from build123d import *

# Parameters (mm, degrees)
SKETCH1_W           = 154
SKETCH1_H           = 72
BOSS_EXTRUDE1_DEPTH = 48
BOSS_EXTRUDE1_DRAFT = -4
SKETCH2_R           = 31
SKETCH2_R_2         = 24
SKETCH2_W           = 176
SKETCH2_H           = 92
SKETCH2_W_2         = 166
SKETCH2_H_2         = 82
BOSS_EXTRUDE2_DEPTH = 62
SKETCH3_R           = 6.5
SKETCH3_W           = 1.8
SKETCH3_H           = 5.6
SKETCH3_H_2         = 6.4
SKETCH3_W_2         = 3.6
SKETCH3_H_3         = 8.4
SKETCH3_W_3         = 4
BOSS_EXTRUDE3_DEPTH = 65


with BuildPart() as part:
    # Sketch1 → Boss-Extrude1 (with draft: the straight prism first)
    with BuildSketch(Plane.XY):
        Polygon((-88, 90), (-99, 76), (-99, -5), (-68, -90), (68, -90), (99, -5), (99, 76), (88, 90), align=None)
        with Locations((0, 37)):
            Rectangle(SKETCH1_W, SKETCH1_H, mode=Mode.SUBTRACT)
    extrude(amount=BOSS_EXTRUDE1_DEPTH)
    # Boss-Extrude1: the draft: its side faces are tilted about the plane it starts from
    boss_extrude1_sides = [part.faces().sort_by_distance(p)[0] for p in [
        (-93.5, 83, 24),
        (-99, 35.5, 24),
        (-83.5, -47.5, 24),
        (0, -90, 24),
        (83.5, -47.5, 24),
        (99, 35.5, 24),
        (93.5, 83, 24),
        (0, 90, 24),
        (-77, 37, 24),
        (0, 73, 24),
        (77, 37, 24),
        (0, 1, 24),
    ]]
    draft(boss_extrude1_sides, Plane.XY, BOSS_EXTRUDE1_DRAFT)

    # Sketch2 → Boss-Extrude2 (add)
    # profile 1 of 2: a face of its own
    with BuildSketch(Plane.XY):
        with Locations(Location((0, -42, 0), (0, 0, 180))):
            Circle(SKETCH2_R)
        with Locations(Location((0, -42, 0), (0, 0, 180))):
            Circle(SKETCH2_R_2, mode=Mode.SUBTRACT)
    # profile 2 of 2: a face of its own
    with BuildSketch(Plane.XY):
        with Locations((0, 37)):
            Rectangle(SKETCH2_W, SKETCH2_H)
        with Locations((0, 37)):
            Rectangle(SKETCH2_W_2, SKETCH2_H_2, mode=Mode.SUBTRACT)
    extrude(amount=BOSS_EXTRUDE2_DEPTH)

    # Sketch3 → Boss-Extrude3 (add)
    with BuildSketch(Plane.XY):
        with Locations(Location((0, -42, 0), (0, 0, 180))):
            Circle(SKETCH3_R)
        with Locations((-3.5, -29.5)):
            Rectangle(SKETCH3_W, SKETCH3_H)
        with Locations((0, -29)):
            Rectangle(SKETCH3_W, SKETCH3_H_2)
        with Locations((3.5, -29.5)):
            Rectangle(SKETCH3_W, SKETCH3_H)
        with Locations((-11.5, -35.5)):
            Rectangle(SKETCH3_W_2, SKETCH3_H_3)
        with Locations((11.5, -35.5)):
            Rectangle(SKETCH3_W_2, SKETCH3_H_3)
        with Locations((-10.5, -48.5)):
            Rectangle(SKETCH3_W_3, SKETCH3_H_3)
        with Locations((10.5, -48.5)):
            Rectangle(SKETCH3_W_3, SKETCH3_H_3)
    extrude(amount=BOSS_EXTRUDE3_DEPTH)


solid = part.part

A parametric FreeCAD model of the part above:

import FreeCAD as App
import Part
import Sketcher
from FreeCAD import Vector


def faces_at(feature, points):
    """Names of the faces that lie closest to the given points."""
    faces = feature.Shape.Faces
    near = lambda p: min(range(len(faces)), key=lambda i: faces[i].distToShape(Part.Vertex(*p))[0])
    return sorted({f"Face{near(p) + 1}" for p in points})

doc = App.newDocument("Part")
body = doc.addObject("PartDesign::Body", "Body")

sketch1 = body.newObject("Sketcher::SketchObject", "Sketch")
sketch1.AttachmentSupport = (doc.getObject("XY_Plane"), [""])
sketch1.MapMode = "FlatFace"
sketch1.addGeometry(Part.LineSegment(Vector(-88, 90, 0), Vector(-99, 76, 0)), False)
sketch1.addGeometry(Part.LineSegment(Vector(-99, 76, 0), Vector(-99, -5, 0)), False)
sketch1.addGeometry(Part.LineSegment(Vector(-99, -5, 0), Vector(-68, -90, 0)), False)
sketch1.addGeometry(Part.LineSegment(Vector(-68, -90, 0), Vector(68, -90, 0)), False)
sketch1.addGeometry(Part.LineSegment(Vector(68, -90, 0), Vector(99, -5, 0)), False)
sketch1.addGeometry(Part.LineSegment(Vector(99, -5, 0), Vector(99, 76, 0)), False)
sketch1.addGeometry(Part.LineSegment(Vector(99, 76, 0), Vector(88, 90, 0)), False)
sketch1.addGeometry(Part.LineSegment(Vector(88, 90, 0), Vector(-88, 90, 0)), False)
sketch1.addGeometry(Part.LineSegment(Vector(77, 1, 0), Vector(-77, 1, 0)), False)
sketch1.addGeometry(Part.LineSegment(Vector(-77, 1, 0), Vector(-77, 73, 0)), False)
sketch1.addGeometry(Part.LineSegment(Vector(-77, 73, 0), Vector(77, 73, 0)), False)
sketch1.addGeometry(Part.LineSegment(Vector(77, 73, 0), Vector(77, 1, 0)), False)
sketch1.addConstraint(Sketcher.Constraint("Coincident", 0, 2, 1, 1))
sketch1.addConstraint(Sketcher.Constraint("Coincident", 1, 2, 2, 1))
sketch1.addConstraint(Sketcher.Constraint("Coincident", 2, 2, 3, 1))
sketch1.addConstraint(Sketcher.Constraint("Coincident", 3, 2, 4, 1))
sketch1.addConstraint(Sketcher.Constraint("Coincident", 4, 2, 5, 1))
sketch1.addConstraint(Sketcher.Constraint("Coincident", 5, 2, 6, 1))
sketch1.addConstraint(Sketcher.Constraint("Coincident", 6, 2, 7, 1))
sketch1.addConstraint(Sketcher.Constraint("Coincident", 7, 2, 0, 1))
sketch1.addConstraint(Sketcher.Constraint("Coincident", 8, 2, 9, 1))
sketch1.addConstraint(Sketcher.Constraint("Coincident", 9, 2, 10, 1))
sketch1.addConstraint(Sketcher.Constraint("Coincident", 10, 2, 11, 1))
sketch1.addConstraint(Sketcher.Constraint("Coincident", 11, 2, 8, 1))
sketch1.addConstraint(Sketcher.Constraint("Vertical", 1))
sketch1.addConstraint(Sketcher.Constraint("Horizontal", 3))
sketch1.addConstraint(Sketcher.Constraint("Vertical", 5))
sketch1.addConstraint(Sketcher.Constraint("Horizontal", 7))
sketch1.addConstraint(Sketcher.Constraint("Horizontal", 8))
sketch1.addConstraint(Sketcher.Constraint("Vertical", 9))
sketch1.addConstraint(Sketcher.Constraint("Horizontal", 10))
sketch1.addConstraint(Sketcher.Constraint("Vertical", 11))
sketch1.addConstraint(Sketcher.Constraint("Symmetric", 1, 2, 4, 2, -2))
sketch1.addConstraint(Sketcher.Constraint("Horizontal", 0, 2, 5, 2))
sketch1.addConstraint(Sketcher.Constraint("Equal", 2, 4))
sketch1.addConstraint(Sketcher.Constraint("Equal", 0, 6))
sketch1.addConstraint(Sketcher.Constraint("DistanceX", 3, 1, 3, 2, 136.0))
sketch1.addConstraint(Sketcher.Constraint("DistanceX", 7, 2, 7, 1, 176.0))
sketch1.addConstraint(Sketcher.Constraint("DistanceX", 8, 2, 8, 1, 154.0))
sketch1.addConstraint(Sketcher.Constraint("DistanceY", 1, 2, 1, 1, 81.0))
sketch1.addConstraint(Sketcher.Constraint("DistanceY", 9, 1, 9, 2, 72.0))
sketch1.addConstraint(Sketcher.Constraint("DistanceX", 0, 2, -1, 1, 99.0))
sketch1.addConstraint(Sketcher.Constraint("DistanceY", -1, 1, 0, 2, 76.0))
sketch1.addConstraint(Sketcher.Constraint("DistanceY", 2, 2, -1, 1, 90.0))
sketch1.addConstraint(Sketcher.Constraint("DistanceY", -1, 1, 6, 2, 90.0))
sketch1.addConstraint(Sketcher.Constraint("DistanceX", 8, 2, -1, 1, 77.0))
sketch1.addConstraint(Sketcher.Constraint("DistanceY", -1, 1, 8, 2, 1.0))
pad1 = body.newObject("PartDesign::Pad", "Pad")
pad1.Profile = sketch1
pad1.Length = 48
doc.recompute()

draft = body.newObject("PartDesign::Draft", "Draft")
draft.Base = (pad1, faces_at(pad1, [
    (-93.5, 83, 24),
    (-99, 35.5, 24),
    (-83.5, -47.5, 24),
    (0, -90, 24),
    (83.5, -47.5, 24),
    (99, 35.5, 24),
    (93.5, 83, 24),
    (0, 90, 24),
    (-77, 37, 24),
    (0, 73, 24),
    (77, 37, 24),
    (0, 1, 24),
]))
draft.NeutralPlane = (doc.getObject("XY_Plane"), [""])
draft.Angle = 4
draft.Reversed = True

sketch2 = body.newObject("Sketcher::SketchObject", "Sketch001")
sketch2.AttachmentSupport = (doc.getObject("XY_Plane"), [""])
sketch2.MapMode = "FlatFace"
sketch2.addGeometry(Part.Circle(Vector(0, -42, 0), Vector(0, 0, 1), 31), False)
sketch2.addGeometry(Part.Circle(Vector(0, -42, 0), Vector(0, 0, 1), 24), False)
sketch2.addGeometry(Part.LineSegment(Vector(-88, 83, 0), Vector(-88, -9, 0)), False)
sketch2.addGeometry(Part.LineSegment(Vector(-88, -9, 0), Vector(88, -9, 0)), False)
sketch2.addGeometry(Part.LineSegment(Vector(88, -9, 0), Vector(88, 83, 0)), False)
sketch2.addGeometry(Part.LineSegment(Vector(88, 83, 0), Vector(-88, 83, 0)), False)
sketch2.addGeometry(Part.LineSegment(Vector(83, -4, 0), Vector(-83, -4, 0)), False)
sketch2.addGeometry(Part.LineSegment(Vector(-83, -4, 0), Vector(-83, 78, 0)), False)
sketch2.addGeometry(Part.LineSegment(Vector(-83, 78, 0), Vector(83, 78, 0)), False)
sketch2.addGeometry(Part.LineSegment(Vector(83, 78, 0), Vector(83, -4, 0)), False)
sketch2.addConstraint(Sketcher.Constraint("Coincident", 2, 2, 3, 1))
sketch2.addConstraint(Sketcher.Constraint("Coincident", 3, 2, 4, 1))
sketch2.addConstraint(Sketcher.Constraint("Coincident", 4, 2, 5, 1))
sketch2.addConstraint(Sketcher.Constraint("Coincident", 5, 2, 2, 1))
sketch2.addConstraint(Sketcher.Constraint("Coincident", 6, 2, 7, 1))
sketch2.addConstraint(Sketcher.Constraint("Coincident", 7, 2, 8, 1))
sketch2.addConstraint(Sketcher.Constraint("Coincident", 8, 2, 9, 1))
sketch2.addConstraint(Sketcher.Constraint("Coincident", 9, 2, 6, 1))
sketch2.addConstraint(Sketcher.Constraint("Vertical", 2))
sketch2.addConstraint(Sketcher.Constraint("Horizontal", 3))
sketch2.addConstraint(Sketcher.Constraint("Vertical", 4))
sketch2.addConstraint(Sketcher.Constraint("Horizontal", 5))
sketch2.addConstraint(Sketcher.Constraint("Horizontal", 6))
sketch2.addConstraint(Sketcher.Constraint("Vertical", 7))
sketch2.addConstraint(Sketcher.Constraint("Horizontal", 8))
sketch2.addConstraint(Sketcher.Constraint("Vertical", 9))
sketch2.addConstraint(Sketcher.Constraint("Coincident", 1, 3, 0, 3))
sketch2.addConstraint(Sketcher.Constraint("PointOnObject", 0, 3, -2))
sketch2.addConstraint(Sketcher.Constraint("Diameter", 0, 62.0))
sketch2.addConstraint(Sketcher.Constraint("Diameter", 1, 48.0))
sketch2.addConstraint(Sketcher.Constraint("DistanceX", 3, 1, 3, 2, 176.0))
sketch2.addConstraint(Sketcher.Constraint("DistanceX", 6, 2, 6, 1, 166.0))
sketch2.addConstraint(Sketcher.Constraint("DistanceY", 2, 2, 2, 1, 92.0))
sketch2.addConstraint(Sketcher.Constraint("DistanceY", 7, 1, 7, 2, 82.0))
sketch2.addConstraint(Sketcher.Constraint("DistanceY", 0, 3, -1, 1, 42.0))
sketch2.addConstraint(Sketcher.Constraint("DistanceX", 2, 2, -1, 1, 88.0))
sketch2.addConstraint(Sketcher.Constraint("DistanceY", 2, 2, -1, 1, 9.0))
sketch2.addConstraint(Sketcher.Constraint("DistanceX", 6, 2, -1, 1, 83.0))
sketch2.addConstraint(Sketcher.Constraint("DistanceY", 6, 2, -1, 1, 4.0))
pad2 = body.newObject("PartDesign::Pad", "Pad001")
pad2.Profile = sketch2
pad2.Length = 62

sketch3 = body.newObject("Sketcher::SketchObject", "Sketch002")
sketch3.AttachmentSupport = (doc.getObject("XY_Plane"), [""])
sketch3.MapMode = "FlatFace"
sketch3.addGeometry(Part.Circle(Vector(0, -42, 0), Vector(0, 0, 1), 6.5), False)
sketch3.addGeometry(Part.LineSegment(Vector(-4.4, -26.7, 0), Vector(-4.4, -32.3, 0)), False)
sketch3.addGeometry(Part.LineSegment(Vector(-4.4, -32.3, 0), Vector(-2.6, -32.3, 0)), False)
sketch3.addGeometry(Part.LineSegment(Vector(-2.6, -32.3, 0), Vector(-2.6, -26.7, 0)), False)
sketch3.addGeometry(Part.LineSegment(Vector(-2.6, -26.7, 0), Vector(-4.4, -26.7, 0)), False)
sketch3.addGeometry(Part.LineSegment(Vector(-0.9, -25.8, 0), Vector(-0.9, -32.2, 0)), False)
sketch3.addGeometry(Part.LineSegment(Vector(-0.9, -32.2, 0), Vector(0.9, -32.2, 0)), False)
sketch3.addGeometry(Part.LineSegment(Vector(0.9, -32.2, 0), Vector(0.9, -25.8, 0)), False)
sketch3.addGeometry(Part.LineSegment(Vector(0.9, -25.8, 0), Vector(-0.9, -25.8, 0)), False)
sketch3.addGeometry(Part.LineSegment(Vector(2.6, -26.7, 0), Vector(2.6, -32.3, 0)), False)
sketch3.addGeometry(Part.LineSegment(Vector(2.6, -32.3, 0), Vector(4.4, -32.3, 0)), False)
sketch3.addGeometry(Part.LineSegment(Vector(4.4, -32.3, 0), Vector(4.4, -26.7, 0)), False)
sketch3.addGeometry(Part.LineSegment(Vector(4.4, -26.7, 0), Vector(2.6, -26.7, 0)), False)
sketch3.addGeometry(Part.LineSegment(Vector(-13.3, -31.3, 0), Vector(-13.3, -39.7, 0)), False)
sketch3.addGeometry(Part.LineSegment(Vector(-13.3, -39.7, 0), Vector(-9.7, -39.7, 0)), False)
sketch3.addGeometry(Part.LineSegment(Vector(-9.7, -39.7, 0), Vector(-9.7, -31.3, 0)), False)
sketch3.addGeometry(Part.LineSegment(Vector(-9.7, -31.3, 0), Vector(-13.3, -31.3, 0)), False)
sketch3.addGeometry(Part.LineSegment(Vector(9.7, -31.3, 0), Vector(9.7, -39.7, 0)), False)
sketch3.addGeometry(Part.LineSegment(Vector(9.7, -39.7, 0), Vector(13.3, -39.7, 0)), False)
sketch3.addGeometry(Part.LineSegment(Vector(13.3, -39.7, 0), Vector(13.3, -31.3, 0)), False)
sketch3.addGeometry(Part.LineSegment(Vector(13.3, -31.3, 0), Vector(9.7, -31.3, 0)), False)
sketch3.addGeometry(Part.LineSegment(Vector(-12.5, -44.3, 0), Vector(-12.5, -52.7, 0)), False)
sketch3.addGeometry(Part.LineSegment(Vector(-12.5, -52.7, 0), Vector(-8.5, -52.7, 0)), False)
sketch3.addGeometry(Part.LineSegment(Vector(-8.5, -52.7, 0), Vector(-8.5, -44.3, 0)), False)
sketch3.addGeometry(Part.LineSegment(Vector(-8.5, -44.3, 0), Vector(-12.5, -44.3, 0)), False)
sketch3.addGeometry(Part.LineSegment(Vector(8.5, -44.3, 0), Vector(8.5, -52.7, 0)), False)
sketch3.addGeometry(Part.LineSegment(Vector(8.5, -52.7, 0), Vector(12.5, -52.7, 0)), False)
sketch3.addGeometry(Part.LineSegment(Vector(12.5, -52.7, 0), Vector(12.5, -44.3, 0)), False)
sketch3.addGeometry(Part.LineSegment(Vector(12.5, -44.3, 0), Vector(8.5, -44.3, 0)), False)
sketch3.addConstraint(Sketcher.Constraint("Coincident", 1, 2, 2, 1))
sketch3.addConstraint(Sketcher.Constraint("Coincident", 2, 2, 3, 1))
sketch3.addConstraint(Sketcher.Constraint("Coincident", 3, 2, 4, 1))
sketch3.addConstraint(Sketcher.Constraint("Coincident", 4, 2, 1, 1))
sketch3.addConstraint(Sketcher.Constraint("Coincident", 5, 2, 6, 1))
sketch3.addConstraint(Sketcher.Constraint("Coincident", 6, 2, 7, 1))
sketch3.addConstraint(Sketcher.Constraint("Coincident", 7, 2, 8, 1))
sketch3.addConstraint(Sketcher.Constraint("Coincident", 8, 2, 5, 1))
sketch3.addConstraint(Sketcher.Constraint("Coincident", 9, 2, 10, 1))
sketch3.addConstraint(Sketcher.Constraint("Coincident", 10, 2, 11, 1))
sketch3.addConstraint(Sketcher.Constraint("Coincident", 11, 2, 12, 1))
sketch3.addConstraint(Sketcher.Constraint("Coincident", 12, 2, 9, 1))
sketch3.addConstraint(Sketcher.Constraint("Coincident", 13, 2, 14, 1))
sketch3.addConstraint(Sketcher.Constraint("Coincident", 14, 2, 15, 1))
sketch3.addConstraint(Sketcher.Constraint("Coincident", 15, 2, 16, 1))
sketch3.addConstraint(Sketcher.Constraint("Coincident", 16, 2, 13, 1))
sketch3.addConstraint(Sketcher.Constraint("Coincident", 17, 2, 18, 1))
sketch3.addConstraint(Sketcher.Constraint("Coincident", 18, 2, 19, 1))
sketch3.addConstraint(Sketcher.Constraint("Coincident", 19, 2, 20, 1))
sketch3.addConstraint(Sketcher.Constraint("Coincident", 20, 2, 17, 1))
sketch3.addConstraint(Sketcher.Constraint("Coincident", 21, 2, 22, 1))
sketch3.addConstraint(Sketcher.Constraint("Coincident", 22, 2, 23, 1))
sketch3.addConstraint(Sketcher.Constraint("Coincident", 23, 2, 24, 1))
sketch3.addConstraint(Sketcher.Constraint("Coincident", 24, 2, 21, 1))
sketch3.addConstraint(Sketcher.Constraint("Coincident", 25, 2, 26, 1))
sketch3.addConstraint(Sketcher.Constraint("Coincident", 26, 2, 27, 1))
sketch3.addConstraint(Sketcher.Constraint("Coincident", 27, 2, 28, 1))
sketch3.addConstraint(Sketcher.Constraint("Coincident", 28, 2, 25, 1))
sketch3.addConstraint(Sketcher.Constraint("Vertical", 1))
sketch3.addConstraint(Sketcher.Constraint("Horizontal", 2))
sketch3.addConstraint(Sketcher.Constraint("Vertical", 3))
sketch3.addConstraint(Sketcher.Constraint("Horizontal", 4))
sketch3.addConstraint(Sketcher.Constraint("Vertical", 5))
sketch3.addConstraint(Sketcher.Constraint("Horizontal", 6))
sketch3.addConstraint(Sketcher.Constraint("Vertical", 7))
sketch3.addConstraint(Sketcher.Constraint("Horizontal", 8))
sketch3.addConstraint(Sketcher.Constraint("Vertical", 9))
sketch3.addConstraint(Sketcher.Constraint("Horizontal", 10))
sketch3.addConstraint(Sketcher.Constraint("Vertical", 11))
sketch3.addConstraint(Sketcher.Constraint("Horizontal", 12))
sketch3.addConstraint(Sketcher.Constraint("Vertical", 13))
sketch3.addConstraint(Sketcher.Constraint("Horizontal", 14))
sketch3.addConstraint(Sketcher.Constraint("Vertical", 15))
sketch3.addConstraint(Sketcher.Constraint("Horizontal", 16))
sketch3.addConstraint(Sketcher.Constraint("Vertical", 17))
sketch3.addConstraint(Sketcher.Constraint("Horizontal", 18))
sketch3.addConstraint(Sketcher.Constraint("Vertical", 19))
sketch3.addConstraint(Sketcher.Constraint("Horizontal", 20))
sketch3.addConstraint(Sketcher.Constraint("Vertical", 21))
sketch3.addConstraint(Sketcher.Constraint("Horizontal", 22))
sketch3.addConstraint(Sketcher.Constraint("Vertical", 23))
sketch3.addConstraint(Sketcher.Constraint("Horizontal", 24))
sketch3.addConstraint(Sketcher.Constraint("Vertical", 25))
sketch3.addConstraint(Sketcher.Constraint("Horizontal", 26))
sketch3.addConstraint(Sketcher.Constraint("Vertical", 27))
sketch3.addConstraint(Sketcher.Constraint("Horizontal", 28))
sketch3.addConstraint(Sketcher.Constraint("Symmetric", 2, 2, 9, 2, -2))
sketch3.addConstraint(Sketcher.Constraint("Symmetric", 4, 2, 11, 2, -2))
sketch3.addConstraint(Sketcher.Constraint("Symmetric", 14, 2, 17, 2, -2))
sketch3.addConstraint(Sketcher.Constraint("Symmetric", 16, 2, 19, 2, -2))
sketch3.addConstraint(Sketcher.Constraint("Symmetric", 22, 2, 25, 2, -2))
sketch3.addConstraint(Sketcher.Constraint("Symmetric", 24, 2, 27, 2, -2))
sketch3.addConstraint(Sketcher.Constraint("PointOnObject", 0, 3, -2))
sketch3.addConstraint(Sketcher.Constraint("Equal", 4, 6))
sketch3.addConstraint(Sketcher.Constraint("Equal", 19, 21))
sketch3.addConstraint(Sketcher.Constraint("Diameter", 0, 13.0))
sketch3.addConstraint(Sketcher.Constraint("DistanceX", 22, 1, 22, 2, 4.0))
sketch3.addConstraint(Sketcher.Constraint("DistanceX", 2, 1, 2, 2, 1.8))
sketch3.addConstraint(Sketcher.Constraint("DistanceX", 14, 1, 14, 2, 3.6))
sketch3.addConstraint(Sketcher.Constraint("DistanceY", 1, 2, 1, 1, 5.6))
sketch3.addConstraint(Sketcher.Constraint("DistanceY", 5, 2, 5, 1, 6.4))
sketch3.addConstraint(Sketcher.Constraint("DistanceY", 13, 2, 13, 1, 8.4))
sketch3.addConstraint(Sketcher.Constraint("DistanceY", 0, 3, -1, 1, 42.0))
sketch3.addConstraint(Sketcher.Constraint("DistanceX", 1, 2, 9, 2, 7.0))
sketch3.addConstraint(Sketcher.Constraint("DistanceY", 13, 2, 4, 2, 13.0))
sketch3.addConstraint(Sketcher.Constraint("DistanceY", 21, 2, 13, 2, 13.0))
sketch3.addConstraint(Sketcher.Constraint("DistanceX", 22, 2, 25, 2, 17.0))
sketch3.addConstraint(Sketcher.Constraint("DistanceY", 1, 2, -1, 1, 32.3))
sketch3.addConstraint(Sketcher.Constraint("DistanceX", 5, 2, -1, 1, 0.9))
sketch3.addConstraint(Sketcher.Constraint("DistanceY", 5, 2, -1, 1, 32.2))
sketch3.addConstraint(Sketcher.Constraint("DistanceX", 13, 2, -1, 1, 13.3))
pad3 = body.newObject("PartDesign::Pad", "Pad002")
pad3.Profile = sketch3
pad3.Length = 65

doc.recompute()
